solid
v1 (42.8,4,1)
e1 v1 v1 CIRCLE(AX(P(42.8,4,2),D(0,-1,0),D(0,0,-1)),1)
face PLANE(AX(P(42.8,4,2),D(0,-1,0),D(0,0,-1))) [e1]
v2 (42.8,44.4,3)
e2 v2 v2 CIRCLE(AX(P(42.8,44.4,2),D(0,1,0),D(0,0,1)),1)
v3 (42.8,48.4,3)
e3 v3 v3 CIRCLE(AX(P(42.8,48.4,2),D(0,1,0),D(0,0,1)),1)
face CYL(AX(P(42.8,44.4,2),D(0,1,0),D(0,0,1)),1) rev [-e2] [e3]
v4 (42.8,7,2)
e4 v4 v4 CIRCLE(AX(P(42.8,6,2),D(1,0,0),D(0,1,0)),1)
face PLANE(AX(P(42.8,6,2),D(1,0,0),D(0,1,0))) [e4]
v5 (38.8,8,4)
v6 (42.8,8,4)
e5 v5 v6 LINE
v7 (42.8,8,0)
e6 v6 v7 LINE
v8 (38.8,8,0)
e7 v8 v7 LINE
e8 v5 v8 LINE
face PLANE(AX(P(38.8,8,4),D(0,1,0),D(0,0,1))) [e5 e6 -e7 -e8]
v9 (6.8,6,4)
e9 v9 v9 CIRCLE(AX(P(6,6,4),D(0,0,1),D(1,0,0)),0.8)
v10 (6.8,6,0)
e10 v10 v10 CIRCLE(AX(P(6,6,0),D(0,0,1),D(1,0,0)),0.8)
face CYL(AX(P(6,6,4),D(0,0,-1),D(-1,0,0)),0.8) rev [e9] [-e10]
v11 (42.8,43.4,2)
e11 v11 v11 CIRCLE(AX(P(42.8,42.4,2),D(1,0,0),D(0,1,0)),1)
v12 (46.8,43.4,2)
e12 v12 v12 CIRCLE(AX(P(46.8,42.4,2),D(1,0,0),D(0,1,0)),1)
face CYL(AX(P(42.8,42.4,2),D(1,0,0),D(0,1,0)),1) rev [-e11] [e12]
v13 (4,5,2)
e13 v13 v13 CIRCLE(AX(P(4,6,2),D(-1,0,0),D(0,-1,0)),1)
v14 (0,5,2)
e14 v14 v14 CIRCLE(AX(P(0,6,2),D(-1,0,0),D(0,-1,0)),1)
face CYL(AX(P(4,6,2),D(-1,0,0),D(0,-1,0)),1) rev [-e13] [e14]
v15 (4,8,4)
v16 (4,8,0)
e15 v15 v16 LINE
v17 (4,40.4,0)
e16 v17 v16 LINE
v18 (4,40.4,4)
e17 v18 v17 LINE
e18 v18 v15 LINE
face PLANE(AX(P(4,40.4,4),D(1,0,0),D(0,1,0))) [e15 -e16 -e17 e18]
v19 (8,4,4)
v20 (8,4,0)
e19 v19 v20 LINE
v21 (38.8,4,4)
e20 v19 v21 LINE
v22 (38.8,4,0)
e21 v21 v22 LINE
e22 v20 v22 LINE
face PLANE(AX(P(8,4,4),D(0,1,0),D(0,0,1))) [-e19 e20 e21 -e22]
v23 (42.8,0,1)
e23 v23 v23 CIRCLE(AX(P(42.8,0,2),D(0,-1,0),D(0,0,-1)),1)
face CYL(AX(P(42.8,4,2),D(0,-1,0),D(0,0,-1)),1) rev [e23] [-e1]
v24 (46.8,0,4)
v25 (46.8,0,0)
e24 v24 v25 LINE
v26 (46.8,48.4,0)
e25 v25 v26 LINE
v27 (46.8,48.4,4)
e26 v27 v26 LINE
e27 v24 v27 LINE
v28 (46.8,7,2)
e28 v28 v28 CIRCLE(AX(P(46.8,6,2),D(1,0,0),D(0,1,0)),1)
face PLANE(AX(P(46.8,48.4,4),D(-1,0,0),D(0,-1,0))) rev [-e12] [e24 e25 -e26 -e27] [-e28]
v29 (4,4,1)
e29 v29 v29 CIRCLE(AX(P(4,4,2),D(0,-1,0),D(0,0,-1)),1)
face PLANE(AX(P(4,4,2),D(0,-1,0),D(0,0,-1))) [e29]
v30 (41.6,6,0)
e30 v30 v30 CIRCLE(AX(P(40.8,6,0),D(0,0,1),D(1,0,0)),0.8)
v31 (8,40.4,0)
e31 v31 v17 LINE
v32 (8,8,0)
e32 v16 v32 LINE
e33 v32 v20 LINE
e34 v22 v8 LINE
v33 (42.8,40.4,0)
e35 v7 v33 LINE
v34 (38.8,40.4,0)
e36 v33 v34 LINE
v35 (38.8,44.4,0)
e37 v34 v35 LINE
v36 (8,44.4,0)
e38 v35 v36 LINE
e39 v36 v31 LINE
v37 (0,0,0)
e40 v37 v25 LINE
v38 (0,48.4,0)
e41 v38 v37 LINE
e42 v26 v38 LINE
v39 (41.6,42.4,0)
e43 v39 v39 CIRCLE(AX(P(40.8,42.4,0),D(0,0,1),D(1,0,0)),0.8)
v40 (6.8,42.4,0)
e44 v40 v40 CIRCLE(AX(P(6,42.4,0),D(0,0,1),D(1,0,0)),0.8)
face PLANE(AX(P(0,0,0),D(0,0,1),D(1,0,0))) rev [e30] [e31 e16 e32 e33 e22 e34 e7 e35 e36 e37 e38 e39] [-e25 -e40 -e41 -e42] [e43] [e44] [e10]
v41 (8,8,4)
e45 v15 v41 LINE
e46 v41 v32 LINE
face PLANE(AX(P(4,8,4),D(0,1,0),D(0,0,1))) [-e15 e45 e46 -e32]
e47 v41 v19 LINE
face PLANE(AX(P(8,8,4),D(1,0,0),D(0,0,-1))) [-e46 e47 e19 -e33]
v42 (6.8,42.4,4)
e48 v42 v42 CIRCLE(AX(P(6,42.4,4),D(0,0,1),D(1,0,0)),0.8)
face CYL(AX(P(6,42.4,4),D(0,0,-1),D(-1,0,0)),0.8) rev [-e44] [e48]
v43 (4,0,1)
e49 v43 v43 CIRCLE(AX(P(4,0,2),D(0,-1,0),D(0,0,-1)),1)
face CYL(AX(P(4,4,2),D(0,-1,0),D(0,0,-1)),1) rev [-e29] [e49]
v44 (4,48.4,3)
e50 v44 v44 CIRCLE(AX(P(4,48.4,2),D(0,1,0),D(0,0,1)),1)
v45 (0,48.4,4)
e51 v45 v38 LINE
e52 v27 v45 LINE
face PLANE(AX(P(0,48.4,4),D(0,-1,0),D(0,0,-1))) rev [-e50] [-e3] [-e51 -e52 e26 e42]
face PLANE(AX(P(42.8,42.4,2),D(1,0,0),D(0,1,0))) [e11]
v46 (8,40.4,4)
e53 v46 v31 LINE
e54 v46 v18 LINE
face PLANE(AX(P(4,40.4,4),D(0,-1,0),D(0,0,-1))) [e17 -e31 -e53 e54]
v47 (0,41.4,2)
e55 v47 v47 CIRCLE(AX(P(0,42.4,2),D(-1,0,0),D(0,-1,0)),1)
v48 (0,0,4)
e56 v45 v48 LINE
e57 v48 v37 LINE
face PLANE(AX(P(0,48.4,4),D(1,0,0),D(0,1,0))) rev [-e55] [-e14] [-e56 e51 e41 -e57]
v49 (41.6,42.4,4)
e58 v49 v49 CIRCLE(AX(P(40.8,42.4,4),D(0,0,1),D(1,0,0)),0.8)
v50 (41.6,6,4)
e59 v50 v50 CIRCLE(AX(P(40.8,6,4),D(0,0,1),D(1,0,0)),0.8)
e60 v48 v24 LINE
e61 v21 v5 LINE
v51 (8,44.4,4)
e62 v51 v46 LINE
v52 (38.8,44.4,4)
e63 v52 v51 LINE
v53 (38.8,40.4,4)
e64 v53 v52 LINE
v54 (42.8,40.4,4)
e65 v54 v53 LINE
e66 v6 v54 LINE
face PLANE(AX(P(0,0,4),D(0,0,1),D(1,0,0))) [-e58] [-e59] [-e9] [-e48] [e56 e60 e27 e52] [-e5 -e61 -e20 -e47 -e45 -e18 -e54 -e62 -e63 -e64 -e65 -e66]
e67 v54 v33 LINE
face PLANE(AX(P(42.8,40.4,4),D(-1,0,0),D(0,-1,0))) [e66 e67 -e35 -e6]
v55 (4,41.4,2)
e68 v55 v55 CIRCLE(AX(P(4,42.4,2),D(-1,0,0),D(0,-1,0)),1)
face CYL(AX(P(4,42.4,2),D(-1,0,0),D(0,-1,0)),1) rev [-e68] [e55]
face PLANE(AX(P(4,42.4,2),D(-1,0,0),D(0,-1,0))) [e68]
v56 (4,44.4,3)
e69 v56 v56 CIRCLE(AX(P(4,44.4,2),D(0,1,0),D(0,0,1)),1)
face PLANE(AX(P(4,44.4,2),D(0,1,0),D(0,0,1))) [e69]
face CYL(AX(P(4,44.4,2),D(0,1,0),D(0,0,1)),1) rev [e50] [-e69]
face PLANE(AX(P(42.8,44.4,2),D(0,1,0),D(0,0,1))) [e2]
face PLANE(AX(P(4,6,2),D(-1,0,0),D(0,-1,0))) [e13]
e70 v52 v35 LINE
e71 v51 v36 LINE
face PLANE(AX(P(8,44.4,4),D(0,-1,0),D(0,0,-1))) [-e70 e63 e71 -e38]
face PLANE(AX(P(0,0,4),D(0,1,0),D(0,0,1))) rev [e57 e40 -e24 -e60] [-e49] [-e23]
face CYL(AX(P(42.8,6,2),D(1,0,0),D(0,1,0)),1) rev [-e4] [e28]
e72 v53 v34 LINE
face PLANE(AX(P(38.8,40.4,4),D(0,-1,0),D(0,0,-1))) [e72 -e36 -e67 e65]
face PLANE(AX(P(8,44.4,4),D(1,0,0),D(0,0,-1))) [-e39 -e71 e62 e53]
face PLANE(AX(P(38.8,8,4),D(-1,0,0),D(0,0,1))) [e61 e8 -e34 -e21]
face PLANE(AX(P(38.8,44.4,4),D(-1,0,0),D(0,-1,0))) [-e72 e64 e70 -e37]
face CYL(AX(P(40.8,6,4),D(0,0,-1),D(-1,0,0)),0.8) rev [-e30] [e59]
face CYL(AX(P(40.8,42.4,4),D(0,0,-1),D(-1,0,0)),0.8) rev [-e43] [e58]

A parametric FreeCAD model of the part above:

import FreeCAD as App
import Part
import Sketcher

V = App.Vector
Q = App.Units.Quantity


def add_polygon(sketch, points):
    """Adds a closed chain of lines whose ends are joined by coincident constraints."""
    first, n = sketch.GeometryCount, len(points)
    for a, b in zip(points, points[1:] + points[:1]):
        sketch.addGeometry(Part.LineSegment(App.Vector(*a, 0), App.Vector(*b, 0)), False)
    for i in range(n):
        sketch.addConstraint(Sketcher.Constraint("Coincident", first + i, 2, first + (i + 1) % n, 1))

doc = App.newDocument("Part")
params = doc.addObject("Spreadsheet::Sheet", "Params")
for row, (alias, value) in enumerate([
    ("sketch1_diameter", "1.6 mm"),
    ("sketch1_width", "4 mm"),
    ("sketch1_width2", "46.8 mm"),
    ("sketch1_width3", "30.8 mm"),
    ("sketch1_height", "48.4 mm"),
    ("pad1_length", "4 mm"),
    ("sketch2_diameter", "2 mm"),
    ("pocket1_length", "4 mm"),
    ("sketch3_diameter", "2 mm"),
    ("pocket2_length", "4 mm"),
    ("sketch4_diameter", "2 mm"),
    ("pocket3_length", "4 mm"),
    ("sketch5_diameter", "2 mm"),
    ("pocket4_length", "4 mm"),
], start=1):
    params.set(f"A{row}", alias)
    params.set(f"B{row}", "=" + value)
    params.setAlias(f"B{row}", alias)

body = doc.addObject("PartDesign::Body", "Body")

sketch1 = body.newObject("Sketcher::SketchObject", "Sketch")
sketch1.AttachmentSupport = (doc.getObject("XY_Plane"), [""])
sketch1.MapMode = "FlatFace"
add_polygon(sketch1, [(0, 48.4), (0, 0), (46.8, 0), (46.8, 48.4)])
sketch1.addGeometry(Part.Circle(V(6, 6, 0), V(0, 0, 1), 0.8), False)
sketch1.addGeometry(Part.Circle(V(40.8, 6, 0), V(0, 0, 1), 0.8), False)
sketch1.addGeometry(Part.Circle(V(6, 42.4, 0), V(0, 0, 1), 0.8), False)
add_polygon(sketch1, [(8, 40.4), (8, 44.4), (38.8, 44.4), (38.8, 40.4), (42.8, 40.4), (42.8, 8), (38.8, 8), (38.8, 4), (8, 4), (8, 8), (4, 8), (4, 40.4)])
sketch1.addGeometry(Part.Circle(V(40.8, 42.4, 0), V(0, 0, 1), 0.8), False)
sketch1.addConstraint([
    Sketcher.Constraint("Vertical", 0),
    Sketcher.Constraint("Horizontal", 1),
    Sketcher.Constraint("Vertical", 2),
    Sketcher.Constraint("Horizontal", 3),
    Sketcher.Constraint("Vertical", 7),
    Sketcher.Constraint("Horizontal", 8),
    Sketcher.Constraint("Vertical", 9),
    Sketcher.Constraint("Horizontal", 10),
    Sketcher.Constraint("Vertical", 11),
    Sketcher.Constraint("Horizontal", 12),
    Sketcher.Constraint("Vertical", 13),
    Sketcher.Constraint("Horizontal", 14),
    Sketcher.Constraint("Vertical", 15),
    Sketcher.Constraint("Horizontal", 16),
    Sketcher.Constraint("Vertical", 17),
    Sketcher.Constraint("Horizontal", 18),
    Sketcher.Constraint("Coincident", 0, 2, -1, 1),
    Sketcher.Constraint("Equal", 4, 5),
    Sketcher.Constraint("Equal", 5, 6),
    Sketcher.Constraint("Equal", 6, 19),
    Sketcher.Constraint("Horizontal", 4, 3, 5, 3),
    Sketcher.Constraint("Horizontal", 6, 3, 19, 3),
    Sketcher.Constraint("Horizontal", 12, 2, 15, 2),
    Sketcher.Constraint("Horizontal", 10, 2, 17, 2),
    Sketcher.Constraint("Vertical", 4, 3, 6, 3),
    Sketcher.Constraint("Vertical", 5, 3, 19, 3),
    Sketcher.Constraint("Vertical", 9, 2, 12, 2),
    Sketcher.Constraint("Vertical", 7, 2, 14, 2),
    Sketcher.Constraint("Equal", 12, 16),
    Sketcher.Constraint("Equal", 18, 7),
    Sketcher.Constraint("Equal", 9, 13),
    Sketcher.Constraint("Diameter", 4, Q("1.6 mm")),
    Sketcher.Constraint("DistanceX", 10, 1, 10, 2, Q("4 mm")),
    Sketcher.Constraint("DistanceX", 1, 1, 1, 2, Q("46.8 mm")),
    Sketcher.Constraint("DistanceX", 8, 1, 8, 2, Q("30.8 mm")),
    Sketcher.Constraint("DistanceY", 0, 2, 0, 1, Q("48.4 mm")),
    Sketcher.Constraint("DistanceY", 11, 2, 11, 1, Q("32.4 mm")),
    Sketcher.Constraint("DistanceX", -1, 1, 4, 3, Q("6 mm")),
    Sketcher.Constraint("DistanceY", -1, 1, 4, 3, Q("6 mm")),
    Sketcher.Constraint("DistanceX", -1, 1, 7, 2, Q("8 mm")),
    Sketcher.Constraint("DistanceY", -1, 1, 11, 2, Q("8 mm")),
    Sketcher.Constraint("DistanceX", 5, 3, 1, 2, Q("6 mm")),
    Sketcher.Constraint("DistanceY", 19, 3, 2, 2, Q("6 mm")),
])
sketch1.setExpression("Constraints[47]", "Params.sketch1_diameter")
sketch1.setExpression("Constraints[48]", "Params.sketch1_width")
sketch1.setExpression("Constraints[49]", "Params.sketch1_width2")
sketch1.setExpression("Constraints[50]", "Params.sketch1_width3")
sketch1.setExpression("Constraints[51]", "Params.sketch1_height")
pad1 = body.newObject("PartDesign::Pad", "Pad")
pad1.Profile = sketch1
pad1.setExpression("Length", "Params.pad1_length")

sketch2 = body.newObject("Sketcher::SketchObject", "Sketch001")
sketch2.AttachmentSupport = (doc.getObject("YZ_Plane"), [""])
sketch2.MapMode = "FlatFace"
sketch2.AttachmentOffset = App.Placement(V(0, 0, 46.8), App.Rotation())
sketch2.addGeometry([
    Part.Circle(V(6, 2, 0), V(0, 0, 1), 1),
    Part.Circle(V(42.4, 2, 0), V(0, 0, 1), 1),
], False)
sketch2.addConstraint([
    Sketcher.Constraint("Equal", 0, 1),
    Sketcher.Constraint("Horizontal", 0, 3, 1, 3),
    Sketcher.Constraint("Diameter", 0, Q("2 mm")),
    Sketcher.Constraint("DistanceX", -1, 1, 0, 3, Q("6 mm")),
    Sketcher.Constraint("DistanceY", -1, 1, 0, 3, Q("2 mm")),
    Sketcher.Constraint("DistanceX", -1, 1, 1, 3, Q("42.4 mm")),
])
sketch2.setExpression("Constraints[2]", "Params.sketch2_diameter")
pocket1 = body.newObject("PartDesign::Pocket", "Pocket")
pocket1.Profile = sketch2
pocket1.setExpression("Length", "Params.pocket1_length")

sketch3 = body.newObject("Sketcher::SketchObject", "Sketch002")
sketch3.AttachmentSupport = (doc.getObject("YZ_Plane"), [""])
sketch3.MapMode = "FlatFace"
sketch3.addGeometry([
    Part.Circle(V(6, 2, 0), V(0, 0, 1), 1),
    Part.Circle(V(42.4, 2, 0), V(0, 0, 1), 1),
], False)
sketch3.addConstraint([
    Sketcher.Constraint("Equal", 0, 1),
    Sketcher.Constraint("Horizontal", 0, 3, 1, 3),
    Sketcher.Constraint("Diameter", 0, Q("2 mm")),
    Sketcher.Constraint("DistanceX", -1, 1, 0, 3, Q("6 mm")),
    Sketcher.Constraint("DistanceY", -1, 1, 0, 3, Q("2 mm")),
    Sketcher.Constraint("DistanceX", -1, 1, 1, 3, Q("42.4 mm")),
])
sketch3.setExpression("Constraints[2]", "Params.sketch3_diameter")
pocket2 = body.newObject("PartDesign::Pocket", "Pocket001")
pocket2.Profile = sketch3
pocket2.setExpression("Length", "Params.pocket2_length")
pocket2.Reversed = True

sketch4 = body.newObject("Sketcher::SketchObject", "Sketch003")
sketch4.AttachmentSupport = (doc.getObject("XZ_Plane"), [""])
sketch4.MapMode = "FlatFace"
sketch4.AttachmentOffset = App.Placement(V(0, 0, -48.4), App.Rotation())
sketch4.addGeometry([
    Part.Circle(V(4, 2, 0), V(0, 0, 1), 1),
    Part.Circle(V(42.8, 2, 0), V(0, 0, 1), 1),
], False)
sketch4.addConstraint([
    Sketcher.Constraint("Equal", 0, 1),
    Sketcher.Constraint("Horizontal", 0, 3, 1, 3),
    Sketcher.Constraint("Diameter", 0, Q("2 mm")),
    Sketcher.Constraint("DistanceX", -1, 1, 0, 3, Q("4 mm")),
    Sketcher.Constraint("DistanceY", -1, 1, 0, 3, Q("2 mm")),
    Sketcher.Constraint("DistanceX", -1, 1, 1, 3, Q("42.8 mm")),
])
sketch4.setExpression("Constraints[2]", "Params.sketch4_diameter")
pocket3 = body.newObject("PartDesign::Pocket", "Pocket002")
pocket3.Profile = sketch4
pocket3.setExpression("Length", "Params.pocket3_length")
pocket3.Reversed = True

sketch5 = body.newObject("Sketcher::SketchObject", "Sketch004")
sketch5.AttachmentSupport = (doc.getObject("XZ_Plane"), [""])
sketch5.MapMode = "FlatFace"
sketch5.addGeometry([
    Part.Circle(V(4, 2, 0), V(0, 0, 1), 1),
    Part.Circle(V(42.8, 2, 0), V(0, 0, 1), 1),
], False)
sketch5.addConstraint([
    Sketcher.Constraint("Equal", 0, 1),
    Sketcher.Constraint("Horizontal", 0, 3, 1, 3),
    Sketcher.Constraint("Diameter", 0, Q("2 mm")),
    Sketcher.Constraint("DistanceX", -1, 1, 0, 3, Q("4 mm")),
    Sketcher.Constraint("DistanceY", -1, 1, 0, 3, Q("2 mm")),
    Sketcher.Constraint("DistanceX", -1, 1, 1, 3, Q("42.8 mm")),
])
sketch5.setExpression("Constraints[2]", "Params.sketch5_diameter")
pocket4 = body.newObject("PartDesign::Pocket", "Pocket003")
pocket4.Profile = sketch5
pocket4.setExpression("Length", "Params.pocket4_length")

doc.recompute()
